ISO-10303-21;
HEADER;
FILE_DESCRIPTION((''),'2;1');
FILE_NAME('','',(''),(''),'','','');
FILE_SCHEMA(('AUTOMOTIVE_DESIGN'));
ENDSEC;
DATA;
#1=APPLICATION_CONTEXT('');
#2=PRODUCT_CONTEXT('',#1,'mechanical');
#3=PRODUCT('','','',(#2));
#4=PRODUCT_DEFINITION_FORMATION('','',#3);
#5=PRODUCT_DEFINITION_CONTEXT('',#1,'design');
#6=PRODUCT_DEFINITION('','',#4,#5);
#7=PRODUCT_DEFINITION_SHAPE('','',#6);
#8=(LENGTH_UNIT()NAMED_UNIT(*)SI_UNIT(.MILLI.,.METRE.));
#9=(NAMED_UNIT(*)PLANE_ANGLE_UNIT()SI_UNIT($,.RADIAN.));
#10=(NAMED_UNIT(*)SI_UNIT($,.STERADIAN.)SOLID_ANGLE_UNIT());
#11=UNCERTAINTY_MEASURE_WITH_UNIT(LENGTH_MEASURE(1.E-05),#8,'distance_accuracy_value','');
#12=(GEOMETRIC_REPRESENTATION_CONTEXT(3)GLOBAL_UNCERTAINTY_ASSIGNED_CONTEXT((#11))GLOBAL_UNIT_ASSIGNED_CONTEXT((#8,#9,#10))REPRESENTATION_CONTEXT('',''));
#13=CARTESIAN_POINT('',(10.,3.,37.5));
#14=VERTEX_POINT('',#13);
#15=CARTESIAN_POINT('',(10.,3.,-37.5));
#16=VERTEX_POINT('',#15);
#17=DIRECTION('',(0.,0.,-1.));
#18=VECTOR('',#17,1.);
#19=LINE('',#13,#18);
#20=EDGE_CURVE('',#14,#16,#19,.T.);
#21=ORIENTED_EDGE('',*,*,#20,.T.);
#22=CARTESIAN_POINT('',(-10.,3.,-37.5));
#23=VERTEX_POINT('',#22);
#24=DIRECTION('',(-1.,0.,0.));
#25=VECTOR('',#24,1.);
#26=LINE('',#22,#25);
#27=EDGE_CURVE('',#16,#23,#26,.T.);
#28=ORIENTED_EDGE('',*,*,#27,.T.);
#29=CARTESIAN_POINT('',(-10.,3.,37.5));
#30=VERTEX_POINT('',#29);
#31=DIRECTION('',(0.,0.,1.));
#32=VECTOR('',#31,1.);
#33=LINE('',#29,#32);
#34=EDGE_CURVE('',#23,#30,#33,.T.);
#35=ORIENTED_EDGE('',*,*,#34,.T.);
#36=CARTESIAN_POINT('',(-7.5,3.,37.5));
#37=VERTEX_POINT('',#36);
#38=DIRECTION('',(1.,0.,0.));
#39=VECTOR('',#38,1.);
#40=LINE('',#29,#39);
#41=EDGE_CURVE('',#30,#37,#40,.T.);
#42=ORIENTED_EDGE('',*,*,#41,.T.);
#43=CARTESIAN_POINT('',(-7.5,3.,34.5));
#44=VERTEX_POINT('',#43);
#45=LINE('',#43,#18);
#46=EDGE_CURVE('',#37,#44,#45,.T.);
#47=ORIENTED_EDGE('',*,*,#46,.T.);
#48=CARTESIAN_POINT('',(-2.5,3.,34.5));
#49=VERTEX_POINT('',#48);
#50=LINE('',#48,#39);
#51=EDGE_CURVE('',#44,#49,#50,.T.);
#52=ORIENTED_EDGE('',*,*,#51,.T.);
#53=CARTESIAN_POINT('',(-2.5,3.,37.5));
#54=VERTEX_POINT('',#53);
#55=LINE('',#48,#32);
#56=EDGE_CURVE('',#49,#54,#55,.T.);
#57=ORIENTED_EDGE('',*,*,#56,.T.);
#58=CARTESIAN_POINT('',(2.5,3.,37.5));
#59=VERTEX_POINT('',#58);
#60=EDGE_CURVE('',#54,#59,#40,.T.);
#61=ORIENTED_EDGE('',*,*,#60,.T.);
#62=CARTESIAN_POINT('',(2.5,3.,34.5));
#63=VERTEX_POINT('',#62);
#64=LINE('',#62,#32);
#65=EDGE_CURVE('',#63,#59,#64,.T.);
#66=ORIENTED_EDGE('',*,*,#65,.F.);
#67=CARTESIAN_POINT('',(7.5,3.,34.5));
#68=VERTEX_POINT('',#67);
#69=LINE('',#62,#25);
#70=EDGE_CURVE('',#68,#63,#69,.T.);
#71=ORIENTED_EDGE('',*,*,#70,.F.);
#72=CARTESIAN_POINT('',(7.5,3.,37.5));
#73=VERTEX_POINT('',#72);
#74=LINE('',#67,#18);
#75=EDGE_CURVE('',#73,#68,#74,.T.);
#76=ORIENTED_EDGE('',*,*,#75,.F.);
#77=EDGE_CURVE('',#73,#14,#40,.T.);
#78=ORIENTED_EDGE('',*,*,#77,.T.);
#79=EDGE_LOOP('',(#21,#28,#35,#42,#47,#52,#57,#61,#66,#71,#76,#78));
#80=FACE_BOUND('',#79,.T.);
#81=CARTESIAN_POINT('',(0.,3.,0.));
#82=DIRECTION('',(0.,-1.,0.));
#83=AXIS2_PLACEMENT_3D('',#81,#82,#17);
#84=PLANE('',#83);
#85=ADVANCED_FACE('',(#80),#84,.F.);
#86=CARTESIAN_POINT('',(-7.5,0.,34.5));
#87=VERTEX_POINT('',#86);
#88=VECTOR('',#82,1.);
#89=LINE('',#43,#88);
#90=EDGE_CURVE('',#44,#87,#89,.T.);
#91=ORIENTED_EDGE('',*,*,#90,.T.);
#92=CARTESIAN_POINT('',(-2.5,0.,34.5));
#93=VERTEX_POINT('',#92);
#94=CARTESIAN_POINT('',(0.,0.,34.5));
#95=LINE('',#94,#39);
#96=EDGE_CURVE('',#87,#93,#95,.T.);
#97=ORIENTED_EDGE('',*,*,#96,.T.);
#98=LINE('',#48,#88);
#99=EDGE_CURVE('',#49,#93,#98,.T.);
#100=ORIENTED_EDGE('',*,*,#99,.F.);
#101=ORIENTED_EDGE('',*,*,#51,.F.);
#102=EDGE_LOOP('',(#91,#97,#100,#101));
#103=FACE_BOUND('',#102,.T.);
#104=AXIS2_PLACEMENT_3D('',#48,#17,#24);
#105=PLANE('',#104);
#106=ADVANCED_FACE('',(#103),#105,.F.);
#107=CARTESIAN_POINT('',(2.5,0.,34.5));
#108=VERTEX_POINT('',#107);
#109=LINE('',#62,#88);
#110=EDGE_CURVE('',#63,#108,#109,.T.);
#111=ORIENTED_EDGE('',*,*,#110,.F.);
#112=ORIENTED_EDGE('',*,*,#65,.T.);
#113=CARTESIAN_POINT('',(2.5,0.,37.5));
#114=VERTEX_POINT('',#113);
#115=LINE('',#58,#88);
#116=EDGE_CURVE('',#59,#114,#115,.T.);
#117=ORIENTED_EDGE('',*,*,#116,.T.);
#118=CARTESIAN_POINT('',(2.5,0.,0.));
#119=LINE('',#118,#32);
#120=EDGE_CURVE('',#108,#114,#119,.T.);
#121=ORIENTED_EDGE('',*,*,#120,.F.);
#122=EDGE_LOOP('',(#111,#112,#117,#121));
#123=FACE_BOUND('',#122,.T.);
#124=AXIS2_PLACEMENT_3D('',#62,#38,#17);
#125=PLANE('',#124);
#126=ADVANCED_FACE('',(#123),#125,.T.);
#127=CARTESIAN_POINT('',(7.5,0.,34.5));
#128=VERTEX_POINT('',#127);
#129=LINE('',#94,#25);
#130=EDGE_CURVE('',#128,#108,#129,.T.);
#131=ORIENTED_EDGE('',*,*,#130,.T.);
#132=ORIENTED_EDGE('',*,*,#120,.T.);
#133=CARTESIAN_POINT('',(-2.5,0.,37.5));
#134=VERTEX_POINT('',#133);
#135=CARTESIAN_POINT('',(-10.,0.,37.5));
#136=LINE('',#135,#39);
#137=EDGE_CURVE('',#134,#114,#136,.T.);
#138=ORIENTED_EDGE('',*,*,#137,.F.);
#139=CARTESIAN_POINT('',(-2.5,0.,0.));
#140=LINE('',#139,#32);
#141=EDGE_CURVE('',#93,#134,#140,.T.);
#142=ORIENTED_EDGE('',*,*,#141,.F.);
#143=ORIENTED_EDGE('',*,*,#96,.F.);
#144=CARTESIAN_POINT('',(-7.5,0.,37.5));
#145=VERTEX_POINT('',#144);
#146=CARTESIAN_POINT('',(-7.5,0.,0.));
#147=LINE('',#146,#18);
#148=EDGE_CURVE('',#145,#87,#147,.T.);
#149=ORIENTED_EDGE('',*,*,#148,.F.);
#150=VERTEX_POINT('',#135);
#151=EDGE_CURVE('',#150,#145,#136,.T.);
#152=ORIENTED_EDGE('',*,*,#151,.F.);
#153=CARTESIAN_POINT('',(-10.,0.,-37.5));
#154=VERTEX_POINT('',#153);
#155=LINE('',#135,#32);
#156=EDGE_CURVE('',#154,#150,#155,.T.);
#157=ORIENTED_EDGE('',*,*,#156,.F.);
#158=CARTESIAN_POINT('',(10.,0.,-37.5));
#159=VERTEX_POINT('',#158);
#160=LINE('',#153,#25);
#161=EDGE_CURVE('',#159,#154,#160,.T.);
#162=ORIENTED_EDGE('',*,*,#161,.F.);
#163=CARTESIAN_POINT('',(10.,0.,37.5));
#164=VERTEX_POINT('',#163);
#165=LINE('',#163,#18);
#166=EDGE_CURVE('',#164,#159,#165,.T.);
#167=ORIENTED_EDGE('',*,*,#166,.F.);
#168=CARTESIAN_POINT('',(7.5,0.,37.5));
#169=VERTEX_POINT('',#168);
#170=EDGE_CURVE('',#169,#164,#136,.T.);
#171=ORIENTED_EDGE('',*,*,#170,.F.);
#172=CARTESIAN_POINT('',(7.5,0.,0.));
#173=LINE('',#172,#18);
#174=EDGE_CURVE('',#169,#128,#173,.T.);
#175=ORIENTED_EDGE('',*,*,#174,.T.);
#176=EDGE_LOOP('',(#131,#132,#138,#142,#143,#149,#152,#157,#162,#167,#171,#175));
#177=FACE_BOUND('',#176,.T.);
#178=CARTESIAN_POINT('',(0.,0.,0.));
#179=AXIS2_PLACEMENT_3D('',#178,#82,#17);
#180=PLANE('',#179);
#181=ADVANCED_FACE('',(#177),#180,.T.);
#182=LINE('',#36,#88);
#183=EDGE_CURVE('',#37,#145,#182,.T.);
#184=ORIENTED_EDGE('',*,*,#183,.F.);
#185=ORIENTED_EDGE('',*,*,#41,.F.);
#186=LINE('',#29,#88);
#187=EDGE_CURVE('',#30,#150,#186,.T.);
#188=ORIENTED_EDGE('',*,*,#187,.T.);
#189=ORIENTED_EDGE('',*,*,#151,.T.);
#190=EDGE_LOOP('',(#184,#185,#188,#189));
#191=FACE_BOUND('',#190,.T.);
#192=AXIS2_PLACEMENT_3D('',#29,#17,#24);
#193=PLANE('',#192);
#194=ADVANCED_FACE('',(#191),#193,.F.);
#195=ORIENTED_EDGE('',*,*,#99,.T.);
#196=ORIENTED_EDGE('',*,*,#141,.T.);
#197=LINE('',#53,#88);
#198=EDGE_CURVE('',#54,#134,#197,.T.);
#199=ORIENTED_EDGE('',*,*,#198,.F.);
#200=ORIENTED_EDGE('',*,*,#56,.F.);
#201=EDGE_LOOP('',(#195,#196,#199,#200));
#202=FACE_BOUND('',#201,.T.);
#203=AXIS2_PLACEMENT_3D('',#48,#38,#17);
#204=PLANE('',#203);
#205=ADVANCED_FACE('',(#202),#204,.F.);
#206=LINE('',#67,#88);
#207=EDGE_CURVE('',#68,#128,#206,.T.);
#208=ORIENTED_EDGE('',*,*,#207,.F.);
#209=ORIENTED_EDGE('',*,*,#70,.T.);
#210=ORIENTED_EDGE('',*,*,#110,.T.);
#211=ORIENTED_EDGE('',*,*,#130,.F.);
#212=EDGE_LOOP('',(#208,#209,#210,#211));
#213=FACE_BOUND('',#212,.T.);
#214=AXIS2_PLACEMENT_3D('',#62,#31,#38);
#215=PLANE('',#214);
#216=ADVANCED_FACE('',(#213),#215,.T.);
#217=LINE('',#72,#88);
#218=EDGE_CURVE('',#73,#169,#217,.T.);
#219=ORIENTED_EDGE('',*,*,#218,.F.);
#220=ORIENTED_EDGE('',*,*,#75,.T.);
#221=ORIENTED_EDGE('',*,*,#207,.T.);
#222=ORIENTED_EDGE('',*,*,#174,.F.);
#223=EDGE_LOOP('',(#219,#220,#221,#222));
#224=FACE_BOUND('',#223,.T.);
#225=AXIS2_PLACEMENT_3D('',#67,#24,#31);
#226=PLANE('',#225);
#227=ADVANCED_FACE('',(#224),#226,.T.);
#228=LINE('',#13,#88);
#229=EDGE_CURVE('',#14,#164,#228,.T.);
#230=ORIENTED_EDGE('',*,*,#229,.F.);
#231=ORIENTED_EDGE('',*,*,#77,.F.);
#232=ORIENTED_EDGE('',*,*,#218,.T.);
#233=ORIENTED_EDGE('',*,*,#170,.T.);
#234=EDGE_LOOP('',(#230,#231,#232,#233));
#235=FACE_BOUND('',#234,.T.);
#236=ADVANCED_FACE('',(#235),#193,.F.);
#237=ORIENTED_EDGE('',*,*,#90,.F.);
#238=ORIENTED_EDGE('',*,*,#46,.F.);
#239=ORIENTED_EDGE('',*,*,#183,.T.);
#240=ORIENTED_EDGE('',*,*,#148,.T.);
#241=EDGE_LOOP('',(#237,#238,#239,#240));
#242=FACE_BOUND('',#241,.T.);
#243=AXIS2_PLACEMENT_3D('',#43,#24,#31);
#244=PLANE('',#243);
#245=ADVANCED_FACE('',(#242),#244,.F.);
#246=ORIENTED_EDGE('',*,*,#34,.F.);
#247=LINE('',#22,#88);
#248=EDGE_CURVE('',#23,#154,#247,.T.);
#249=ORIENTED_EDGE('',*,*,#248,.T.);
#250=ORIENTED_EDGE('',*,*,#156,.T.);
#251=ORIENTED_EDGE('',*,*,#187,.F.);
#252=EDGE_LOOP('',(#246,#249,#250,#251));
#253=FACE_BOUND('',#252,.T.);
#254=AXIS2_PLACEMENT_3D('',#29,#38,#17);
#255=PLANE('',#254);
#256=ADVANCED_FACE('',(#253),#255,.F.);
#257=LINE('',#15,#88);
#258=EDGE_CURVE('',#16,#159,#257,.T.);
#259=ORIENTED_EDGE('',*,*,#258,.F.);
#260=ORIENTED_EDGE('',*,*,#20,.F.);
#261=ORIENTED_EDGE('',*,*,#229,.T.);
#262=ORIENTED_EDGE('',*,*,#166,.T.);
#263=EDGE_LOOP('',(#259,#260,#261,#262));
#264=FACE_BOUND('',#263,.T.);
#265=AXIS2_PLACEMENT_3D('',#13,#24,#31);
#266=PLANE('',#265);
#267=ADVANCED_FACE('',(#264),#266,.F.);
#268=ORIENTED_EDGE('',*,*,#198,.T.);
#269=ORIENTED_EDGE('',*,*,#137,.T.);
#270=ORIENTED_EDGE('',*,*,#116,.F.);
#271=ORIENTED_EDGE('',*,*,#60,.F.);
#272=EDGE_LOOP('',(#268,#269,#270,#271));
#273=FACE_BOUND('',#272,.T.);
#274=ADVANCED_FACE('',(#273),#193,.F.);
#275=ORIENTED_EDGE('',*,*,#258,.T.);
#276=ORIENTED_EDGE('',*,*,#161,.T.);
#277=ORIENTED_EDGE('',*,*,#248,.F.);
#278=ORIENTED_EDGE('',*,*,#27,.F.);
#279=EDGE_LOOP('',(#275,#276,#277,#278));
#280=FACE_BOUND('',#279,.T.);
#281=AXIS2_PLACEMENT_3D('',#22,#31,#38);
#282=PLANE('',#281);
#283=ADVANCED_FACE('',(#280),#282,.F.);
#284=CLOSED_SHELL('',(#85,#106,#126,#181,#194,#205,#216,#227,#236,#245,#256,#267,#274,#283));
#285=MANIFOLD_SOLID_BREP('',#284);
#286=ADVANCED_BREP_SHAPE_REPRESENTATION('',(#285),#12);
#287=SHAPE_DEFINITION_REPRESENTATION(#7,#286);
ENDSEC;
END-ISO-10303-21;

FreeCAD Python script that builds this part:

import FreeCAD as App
import Part
import Sketcher

V = App.Vector

doc = App.newDocument("Part")
params = doc.addObject("Spreadsheet::Sheet", "Params")
for row, (alias, value) in enumerate([
    ("sketch1_width", "20 mm"),
    ("sketch1_height", "75 mm"),
    ("pad1_length", "3 mm"),
    ("sketch2_width", "5 mm"),
    ("sketch2_height", "3 mm"),
    ("pocket1_length", "5 mm"),
], start=1):
    params.set(f"A{row}", alias)
    params.set(f"B{row}", "=" + value)
    params.setAlias(f"B{row}", alias)

body = doc.addObject("PartDesign::Body", "Body")

sketch1 = body.newObject("Sketcher::SketchObject", "Sketch")
sketch1.AttachmentSupport = (doc.getObject("XZ_Plane"), [""])
sketch1.MapMode = "FlatFace"
sketch1.addGeometry([
    Part.LineSegment(V(-10, -38, 0), V(-10, 38, 0)),
    Part.LineSegment(V(-10, 38, 0), V(10, 38, 0)),
    Part.LineSegment(V(10, 38, 0), V(10, -38, 0)),
    Part.LineSegment(V(10, -38, 0), V(-10, -38, 0)),
], False)
sketch1.addConstraint([
    Sketcher.Constraint("Coincident", 0, 2, 1, 1),
    Sketcher.Constraint("Coincident", 1, 2, 2, 1),
    Sketcher.Constraint("Coincident", 2, 2, 3, 1),
    Sketcher.Constraint("Coincident", 3, 2, 0, 1),
    Sketcher.Constraint("Vertical", 0),
    Sketcher.Constraint("Horizontal", 1),
    Sketcher.Constraint("Vertical", 2),
    Sketcher.Constraint("Horizontal", 3),
    Sketcher.Constraint("Symmetric", 0, 2, 2, 2, -1, 1),
    Sketcher.Constraint("DistanceX", 1, 1, 1, 2, 20.0),
    Sketcher.Constraint("DistanceY", 0, 1, 0, 2, 75.0),
])
sketch1.setExpression("Constraints[9]", "Params.sketch1_width")
sketch1.setExpression("Constraints[10]", "Params.sketch1_height")
pad1 = body.newObject("PartDesign::Pad", "Pad")
pad1.Profile = sketch1
pad1.setExpression("Length", "Params.pad1_length")
pad1.Reversed = True

sketch2 = body.newObject("Sketcher::SketchObject", "Sketch001")
sketch2.AttachmentSupport = (doc.getObject("XZ_Plane"), [""])
sketch2.MapMode = "FlatFace"
sketch2.AttachmentOffset = App.Placement(V(0, 0, -4), App.Rotation())
sketch2.addGeometry([
    Part.LineSegment(V(-7.5, 37.5, 0), V(-7.5, 34.5, 0)),
    Part.LineSegment(V(-7.5, 34.5, 0), V(-2.5, 34.5, 0)),
    Part.LineSegment(V(-2.5, 34.5, 0), V(-2.5, 37.5, 0)),
    Part.LineSegment(V(-2.5, 37.5, 0), V(-7.5, 37.5, 0)),
], False)
sketch2.addConstraint([
    Sketcher.Constraint("Coincident", 0, 2, 1, 1),
    Sketcher.Constraint("Coincident", 1, 2, 2, 1),
    Sketcher.Constraint("Coincident", 2, 2, 3, 1),
    Sketcher.Constraint("Coincident", 3, 2, 0, 1),
    Sketcher.Constraint("Vertical", 0),
    Sketcher.Constraint("Horizontal", 1),
    Sketcher.Constraint("Vertical", 2),
    Sketcher.Constraint("Horizontal", 3),
    Sketcher.Constraint("DistanceX", 1, 1, 1, 2, 5.0),
    Sketcher.Constraint("DistanceY", 0, 2, 0, 1, 3.0),
    Sketcher.Constraint("DistanceX", 0, 2, -1, 1, 7.5),
    Sketcher.Constraint("DistanceY", -1, 1, 0, 2, 34.5),
])
sketch2.setExpression("Constraints[8]", "Params.sketch2_width")
sketch2.setExpression("Constraints[9]", "Params.sketch2_height")
pocket1 = body.newObject("PartDesign::Pocket", "Pocket")
pocket1.Profile = sketch2
pocket1.setExpression("Length", "Params.pocket1_length")
pocket1.Reversed = True
doc.recompute()

mirrored = body.newObject("PartDesign::Mirrored", "Mirrored")
mirrored.Originals = [pocket1]
mirrored.MirrorPlane = (doc.getObject("YZ_Plane"), [""])
body.Tip = mirrored

doc.recompute()
